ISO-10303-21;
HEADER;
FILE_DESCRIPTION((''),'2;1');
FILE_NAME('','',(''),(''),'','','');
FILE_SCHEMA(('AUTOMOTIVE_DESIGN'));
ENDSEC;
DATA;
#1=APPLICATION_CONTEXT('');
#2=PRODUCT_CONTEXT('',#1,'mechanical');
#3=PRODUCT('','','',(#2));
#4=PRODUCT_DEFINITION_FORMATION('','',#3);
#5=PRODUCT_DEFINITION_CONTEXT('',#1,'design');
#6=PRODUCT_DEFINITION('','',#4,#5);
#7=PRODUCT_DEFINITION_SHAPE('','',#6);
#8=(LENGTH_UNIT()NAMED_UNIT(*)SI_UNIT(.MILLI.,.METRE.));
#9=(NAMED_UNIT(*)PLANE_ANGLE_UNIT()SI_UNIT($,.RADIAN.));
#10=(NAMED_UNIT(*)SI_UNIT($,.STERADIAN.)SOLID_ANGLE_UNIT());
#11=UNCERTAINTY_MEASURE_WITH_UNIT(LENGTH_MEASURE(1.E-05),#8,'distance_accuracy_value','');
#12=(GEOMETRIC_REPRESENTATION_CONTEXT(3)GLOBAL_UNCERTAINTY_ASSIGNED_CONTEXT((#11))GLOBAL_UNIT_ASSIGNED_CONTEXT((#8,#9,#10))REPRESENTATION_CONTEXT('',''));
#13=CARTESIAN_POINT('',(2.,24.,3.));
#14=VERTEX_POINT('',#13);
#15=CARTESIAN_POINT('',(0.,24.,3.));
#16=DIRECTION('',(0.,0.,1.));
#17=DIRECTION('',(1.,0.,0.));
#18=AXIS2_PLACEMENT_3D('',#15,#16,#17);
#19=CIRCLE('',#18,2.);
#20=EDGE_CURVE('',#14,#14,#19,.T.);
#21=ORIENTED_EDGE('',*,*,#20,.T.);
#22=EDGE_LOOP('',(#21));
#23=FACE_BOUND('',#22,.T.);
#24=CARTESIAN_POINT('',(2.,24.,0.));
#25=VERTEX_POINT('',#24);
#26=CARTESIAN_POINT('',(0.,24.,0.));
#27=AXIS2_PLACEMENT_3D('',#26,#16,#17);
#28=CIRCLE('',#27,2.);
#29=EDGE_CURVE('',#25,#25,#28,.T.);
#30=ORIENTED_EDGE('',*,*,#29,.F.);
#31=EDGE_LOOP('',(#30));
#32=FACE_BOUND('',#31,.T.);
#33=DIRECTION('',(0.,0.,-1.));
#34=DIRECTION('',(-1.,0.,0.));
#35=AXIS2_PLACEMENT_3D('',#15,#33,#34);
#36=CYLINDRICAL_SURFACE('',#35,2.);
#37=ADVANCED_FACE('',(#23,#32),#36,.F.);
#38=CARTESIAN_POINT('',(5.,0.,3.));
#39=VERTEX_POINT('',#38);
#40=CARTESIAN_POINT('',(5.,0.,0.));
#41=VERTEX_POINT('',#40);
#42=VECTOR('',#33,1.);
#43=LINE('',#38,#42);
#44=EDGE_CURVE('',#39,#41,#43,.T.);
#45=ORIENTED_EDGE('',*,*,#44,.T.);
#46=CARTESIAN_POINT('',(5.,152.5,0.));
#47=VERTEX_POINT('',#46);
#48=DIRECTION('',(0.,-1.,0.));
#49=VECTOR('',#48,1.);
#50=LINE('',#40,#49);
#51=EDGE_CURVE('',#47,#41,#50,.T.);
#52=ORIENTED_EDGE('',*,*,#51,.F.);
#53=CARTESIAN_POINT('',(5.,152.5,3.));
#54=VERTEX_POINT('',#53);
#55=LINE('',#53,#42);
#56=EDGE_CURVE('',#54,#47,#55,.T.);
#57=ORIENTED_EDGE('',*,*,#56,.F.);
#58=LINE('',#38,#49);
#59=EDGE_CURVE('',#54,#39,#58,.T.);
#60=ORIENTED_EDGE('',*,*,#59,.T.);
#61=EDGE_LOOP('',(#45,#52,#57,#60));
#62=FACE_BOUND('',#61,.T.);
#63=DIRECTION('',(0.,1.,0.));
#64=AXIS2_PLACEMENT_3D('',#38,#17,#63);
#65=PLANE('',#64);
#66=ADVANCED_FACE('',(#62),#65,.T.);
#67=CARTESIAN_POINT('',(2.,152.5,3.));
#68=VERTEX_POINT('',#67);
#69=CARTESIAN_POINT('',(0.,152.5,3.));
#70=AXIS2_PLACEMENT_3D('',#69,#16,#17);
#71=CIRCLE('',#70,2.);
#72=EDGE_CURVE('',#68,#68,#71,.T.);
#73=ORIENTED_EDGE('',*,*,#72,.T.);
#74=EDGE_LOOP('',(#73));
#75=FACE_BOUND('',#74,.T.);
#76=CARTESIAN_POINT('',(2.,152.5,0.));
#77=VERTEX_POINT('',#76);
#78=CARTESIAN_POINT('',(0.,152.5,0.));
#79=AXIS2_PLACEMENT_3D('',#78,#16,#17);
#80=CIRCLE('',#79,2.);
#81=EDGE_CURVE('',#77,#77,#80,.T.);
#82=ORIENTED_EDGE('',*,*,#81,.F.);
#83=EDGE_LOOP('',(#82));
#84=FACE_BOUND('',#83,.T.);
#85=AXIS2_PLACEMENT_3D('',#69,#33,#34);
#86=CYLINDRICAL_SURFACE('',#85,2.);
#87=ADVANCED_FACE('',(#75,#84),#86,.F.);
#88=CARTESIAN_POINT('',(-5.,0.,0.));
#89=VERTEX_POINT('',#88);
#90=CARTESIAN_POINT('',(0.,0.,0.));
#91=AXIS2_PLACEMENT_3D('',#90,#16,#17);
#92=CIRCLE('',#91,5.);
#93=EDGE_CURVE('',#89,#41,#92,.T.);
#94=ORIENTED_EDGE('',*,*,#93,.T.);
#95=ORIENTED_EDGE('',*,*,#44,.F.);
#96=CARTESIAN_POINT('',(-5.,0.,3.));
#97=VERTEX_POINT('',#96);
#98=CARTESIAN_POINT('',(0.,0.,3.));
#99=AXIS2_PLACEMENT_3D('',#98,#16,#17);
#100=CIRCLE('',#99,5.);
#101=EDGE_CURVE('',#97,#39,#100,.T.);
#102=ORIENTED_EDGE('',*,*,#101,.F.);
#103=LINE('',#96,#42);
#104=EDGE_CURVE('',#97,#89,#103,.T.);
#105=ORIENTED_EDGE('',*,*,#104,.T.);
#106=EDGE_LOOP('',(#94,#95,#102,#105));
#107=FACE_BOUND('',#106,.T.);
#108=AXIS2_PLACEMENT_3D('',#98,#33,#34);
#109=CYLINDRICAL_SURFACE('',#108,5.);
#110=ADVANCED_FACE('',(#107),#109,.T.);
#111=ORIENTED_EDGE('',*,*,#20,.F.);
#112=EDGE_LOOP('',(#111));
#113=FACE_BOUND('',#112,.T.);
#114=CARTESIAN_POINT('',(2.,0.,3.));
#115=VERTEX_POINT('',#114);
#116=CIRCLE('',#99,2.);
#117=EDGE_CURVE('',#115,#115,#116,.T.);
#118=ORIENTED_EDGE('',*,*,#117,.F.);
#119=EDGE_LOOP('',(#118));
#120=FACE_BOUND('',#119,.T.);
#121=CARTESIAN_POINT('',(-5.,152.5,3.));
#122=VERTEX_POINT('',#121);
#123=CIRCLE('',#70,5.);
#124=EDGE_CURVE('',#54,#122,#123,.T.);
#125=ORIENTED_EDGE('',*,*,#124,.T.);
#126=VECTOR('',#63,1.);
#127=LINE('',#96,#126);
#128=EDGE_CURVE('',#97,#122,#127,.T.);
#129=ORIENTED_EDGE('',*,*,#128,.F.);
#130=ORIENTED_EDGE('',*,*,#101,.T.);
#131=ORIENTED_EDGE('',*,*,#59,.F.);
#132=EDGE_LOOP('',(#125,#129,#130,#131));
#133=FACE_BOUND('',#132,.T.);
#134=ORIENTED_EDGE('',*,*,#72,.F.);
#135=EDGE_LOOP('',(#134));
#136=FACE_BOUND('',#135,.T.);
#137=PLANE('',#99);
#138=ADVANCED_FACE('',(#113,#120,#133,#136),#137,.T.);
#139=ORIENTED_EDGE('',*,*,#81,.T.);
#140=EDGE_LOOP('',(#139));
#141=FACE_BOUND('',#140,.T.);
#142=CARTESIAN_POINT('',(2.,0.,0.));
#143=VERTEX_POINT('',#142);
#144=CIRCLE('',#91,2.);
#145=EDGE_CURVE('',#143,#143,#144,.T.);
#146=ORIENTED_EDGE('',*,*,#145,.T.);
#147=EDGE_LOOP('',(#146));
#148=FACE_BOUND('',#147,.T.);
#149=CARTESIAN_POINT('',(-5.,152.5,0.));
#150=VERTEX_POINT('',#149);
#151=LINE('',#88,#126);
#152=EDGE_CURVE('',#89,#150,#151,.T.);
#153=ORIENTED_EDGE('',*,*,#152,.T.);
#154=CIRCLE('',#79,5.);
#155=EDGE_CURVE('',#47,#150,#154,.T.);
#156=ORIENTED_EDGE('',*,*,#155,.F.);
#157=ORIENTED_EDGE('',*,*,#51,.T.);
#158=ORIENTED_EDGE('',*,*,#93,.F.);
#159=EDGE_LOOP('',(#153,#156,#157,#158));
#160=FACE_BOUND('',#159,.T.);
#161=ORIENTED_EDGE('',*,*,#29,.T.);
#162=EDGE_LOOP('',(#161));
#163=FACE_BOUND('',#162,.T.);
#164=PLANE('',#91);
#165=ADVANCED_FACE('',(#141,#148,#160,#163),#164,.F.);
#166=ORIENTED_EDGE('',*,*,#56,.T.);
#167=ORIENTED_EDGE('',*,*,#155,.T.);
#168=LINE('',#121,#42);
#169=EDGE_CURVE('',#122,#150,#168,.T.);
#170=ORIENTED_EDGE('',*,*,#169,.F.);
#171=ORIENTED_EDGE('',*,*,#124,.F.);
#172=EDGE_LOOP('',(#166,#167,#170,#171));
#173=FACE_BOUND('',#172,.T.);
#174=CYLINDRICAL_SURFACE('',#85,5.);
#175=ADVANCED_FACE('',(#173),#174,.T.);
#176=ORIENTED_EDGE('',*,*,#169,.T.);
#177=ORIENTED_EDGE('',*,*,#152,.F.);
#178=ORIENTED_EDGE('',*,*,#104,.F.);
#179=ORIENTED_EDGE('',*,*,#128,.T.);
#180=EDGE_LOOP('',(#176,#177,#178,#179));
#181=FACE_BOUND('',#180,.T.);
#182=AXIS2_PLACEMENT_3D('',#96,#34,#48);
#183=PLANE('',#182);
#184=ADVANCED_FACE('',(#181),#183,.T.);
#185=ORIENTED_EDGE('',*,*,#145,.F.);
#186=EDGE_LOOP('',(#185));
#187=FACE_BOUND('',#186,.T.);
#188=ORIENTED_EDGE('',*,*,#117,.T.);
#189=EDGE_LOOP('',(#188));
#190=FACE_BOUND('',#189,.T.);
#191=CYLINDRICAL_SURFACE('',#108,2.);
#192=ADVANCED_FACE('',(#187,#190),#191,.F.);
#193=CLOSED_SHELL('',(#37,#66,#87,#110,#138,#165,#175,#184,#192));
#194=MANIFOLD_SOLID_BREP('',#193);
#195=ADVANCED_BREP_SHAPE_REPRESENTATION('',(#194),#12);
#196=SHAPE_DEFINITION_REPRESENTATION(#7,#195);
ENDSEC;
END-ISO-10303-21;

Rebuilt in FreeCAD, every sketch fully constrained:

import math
import FreeCAD as App
import Part
import Sketcher
from FreeCAD import Vector

doc = App.newDocument("Part")
params = doc.addObject("Spreadsheet::Sheet", "Params")
for row, (alias, value) in enumerate([
    ("sketch1_diameter", "4 mm"),
    ("sketch1_radius", "5 mm"),
    ("sketch1_height", "152.5 mm"),
    ("pad1_length", "3 mm"),
], start=1):
    params.set(f"A{row}", alias)
    params.set(f"B{row}", "=" + value)
    params.setAlias(f"B{row}", alias)

body = doc.addObject("PartDesign::Body", "Body")

# Sketch on XY plane
sketch1 = body.newObject("Sketcher::SketchObject", "Sketch")
sketch1.AttachmentSupport = (doc.getObject("XY_Plane"), [""])
sketch1.MapMode = "FlatFace"
sketch1.addGeometry([
    Part.LineSegment(Vector(-5, 152.5, 0), Vector(-5, 0, 0)),  # 0
    Part.ArcOfCircle(Part.Circle(Vector(0, 0, 0), Vector(0, 0, 1), 5), math.radians(180), math.radians(360)),  # 1
    Part.LineSegment(Vector(5, 0, 0), Vector(5, 152.5, 0)),  # 2
    Part.ArcOfCircle(Part.Circle(Vector(0, 152.5, 0), Vector(0, 0, 1), 5), math.radians(0), math.radians(180)),  # 3
    Part.Circle(Vector(0, 24, 0), Vector(0, 0, 1), 2),  # 4
    Part.Circle(Vector(0, 152.5, 0), Vector(0, 0, 1), 2),  # 5
    Part.Circle(Vector(0, 0, 0), Vector(0, 0, 1), 2),  # 6
], False)
sketch1.addConstraint([
    Sketcher.Constraint("Tangent", 0, 2, 1, 1),
    Sketcher.Constraint("Tangent", 1, 2, 2, 1),
    Sketcher.Constraint("Tangent", 2, 2, 3, 1),
    Sketcher.Constraint("Tangent", 3, 2, 0, 1),
    Sketcher.Constraint("Vertical", 0),
    Sketcher.Constraint("Vertical", 2),
    Sketcher.Constraint("Coincident", 1, 3, -1, 1),
    Sketcher.Constraint("Coincident", 6, 3, -1, 1),
    Sketcher.Constraint("Coincident", 5, 3, 3, 3),
    Sketcher.Constraint("Equal", 4, 5),
    Sketcher.Constraint("Equal", 5, 6),
    Sketcher.Constraint("PointOnObject", 4, 3, -2),
    Sketcher.Constraint("Diameter", 4, 4.0),
    Sketcher.Constraint("Radius", 1, 5.0),
    Sketcher.Constraint("DistanceY", 0, 2, 0, 1, 152.5),
    Sketcher.Constraint("DistanceY", -1, 1, 4, 3, 24.0),
])
sketch1.setExpression("Constraints[12]", "Params.sketch1_diameter")
sketch1.setExpression("Constraints[13]", "Params.sketch1_radius")
sketch1.setExpression("Constraints[14]", "Params.sketch1_height")
pad1 = body.newObject("PartDesign::Pad", "Pad")
pad1.Profile = sketch1
pad1.setExpression("Length", "Params.pad1_length")

doc.recompute()
